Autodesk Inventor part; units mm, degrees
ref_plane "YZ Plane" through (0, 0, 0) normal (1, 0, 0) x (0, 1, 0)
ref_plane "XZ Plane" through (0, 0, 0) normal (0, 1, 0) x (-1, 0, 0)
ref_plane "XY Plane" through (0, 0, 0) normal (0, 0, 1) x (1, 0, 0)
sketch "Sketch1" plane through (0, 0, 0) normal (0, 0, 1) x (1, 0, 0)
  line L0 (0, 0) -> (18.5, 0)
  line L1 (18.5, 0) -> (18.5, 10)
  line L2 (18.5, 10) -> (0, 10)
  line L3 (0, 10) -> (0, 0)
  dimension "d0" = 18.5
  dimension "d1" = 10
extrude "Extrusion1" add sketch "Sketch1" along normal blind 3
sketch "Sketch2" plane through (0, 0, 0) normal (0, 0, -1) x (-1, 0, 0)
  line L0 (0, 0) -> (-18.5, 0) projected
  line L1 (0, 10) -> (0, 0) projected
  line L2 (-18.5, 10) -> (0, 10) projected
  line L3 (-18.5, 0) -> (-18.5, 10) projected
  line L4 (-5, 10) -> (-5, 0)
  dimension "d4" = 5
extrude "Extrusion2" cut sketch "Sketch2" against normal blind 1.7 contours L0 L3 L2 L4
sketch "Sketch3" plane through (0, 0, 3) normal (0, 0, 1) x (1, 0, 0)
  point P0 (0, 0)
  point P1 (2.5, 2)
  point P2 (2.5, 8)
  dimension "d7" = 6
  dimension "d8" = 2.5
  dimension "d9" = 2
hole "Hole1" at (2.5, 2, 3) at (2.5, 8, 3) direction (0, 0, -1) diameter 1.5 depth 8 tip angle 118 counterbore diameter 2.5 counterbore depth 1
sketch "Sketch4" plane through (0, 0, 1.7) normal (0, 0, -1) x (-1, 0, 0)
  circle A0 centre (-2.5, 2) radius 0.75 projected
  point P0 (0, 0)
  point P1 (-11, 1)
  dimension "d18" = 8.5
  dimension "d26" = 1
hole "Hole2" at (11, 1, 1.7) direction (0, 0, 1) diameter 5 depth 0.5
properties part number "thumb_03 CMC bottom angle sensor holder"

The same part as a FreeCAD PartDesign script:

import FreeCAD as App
import Part
import Sketcher
from FreeCAD import Vector


def add_polygon(sketch, points):
    """Adds a closed chain of lines whose ends are joined by coincident constraints."""
    first, n = sketch.GeometryCount, len(points)
    for a, b in zip(points, points[1:] + points[:1]):
        sketch.addGeometry(Part.LineSegment(App.Vector(*a, 0), App.Vector(*b, 0)), False)
    for i in range(n):
        sketch.addConstraint(Sketcher.Constraint("Coincident", first + i, 2, first + (i + 1) % n, 1))

doc = App.newDocument("Part")
body = doc.addObject("PartDesign::Body", "Body")

sketch1 = body.newObject("Sketcher::SketchObject", "Sketch")
sketch1.AttachmentSupport = (doc.getObject("XY_Plane"), [""])
sketch1.MapMode = "FlatFace"
add_polygon(sketch1, [(0, 10), (0, 0), (18, 0), (18, 10)])
sketch1.addConstraint([
    Sketcher.Constraint("Vertical", 0),
    Sketcher.Constraint("Horizontal", 1),
    Sketcher.Constraint("Vertical", 2),
    Sketcher.Constraint("Horizontal", 3),
    Sketcher.Constraint("Coincident", 0, 2, -1, 1),
    Sketcher.Constraint("DistanceY", 0, 2, 0, 1, 10.0),
    Sketcher.Constraint("DistanceX", 1, 1, 1, 2, 18.5),
])
pad1 = body.newObject("PartDesign::Pad", "Pad")
pad1.Profile = sketch1
pad1.Length = 3

sketch2 = body.newObject("Sketcher::SketchObject", "Sketch001")
sketch2.AttachmentSupport = (doc.getObject("XY_Plane"), [""])
sketch2.MapMode = "FlatFace"
add_polygon(sketch2, [(18, 0), (5, 0), (5, 10), (18, 10)])
sketch2.addConstraint([
    Sketcher.Constraint("Horizontal", 0),
    Sketcher.Constraint("Vertical", 1),
    Sketcher.Constraint("Horizontal", 2),
    Sketcher.Constraint("Vertical", 3),
    Sketcher.Constraint("PointOnObject", 0, 2, -1),
    Sketcher.Constraint("DistanceX", -1, 1, 0, 2, 5.0),
    Sketcher.Constraint("DistanceY", 1, 1, 1, 2, 10.0),
    Sketcher.Constraint("DistanceX", 0, 2, 0, 1, 13.5),
])
pocket1 = body.newObject("PartDesign::Pocket", "Pocket")
pocket1.Profile = sketch2
pocket1.Length = 1.7
pocket1.Reversed = True

sketch3 = body.newObject("Sketcher::SketchObject", "Sketch002")
sketch3.AttachmentSupport = (doc.getObject("XY_Plane"), [""])
sketch3.MapMode = "FlatFace"
sketch3.AttachmentOffset = App.Placement(Vector(0, 0, 3), App.Rotation())
sketch3.addGeometry([
    Part.Circle(Vector(2.5, 2, 0), Vector(0, 0, 1), 0.8),
    Part.Circle(Vector(2.5, 8, 0), Vector(0, 0, 1), 0.8),
], False)
sketch3.addConstraint([
    Sketcher.Constraint("Equal", 0, 1),
    Sketcher.Constraint("Vertical", 0, 3, 1, 3),
    Sketcher.Constraint("Diameter", 0, 1.5),
    Sketcher.Constraint("DistanceY", -1, 1, 0, 3, 2.0),
    Sketcher.Constraint("DistanceY", -1, 1, 1, 3, 8.0),
    Sketcher.Constraint("DistanceX", -1, 1, 0, 3, 2.5),
])
doc.recompute()
hole = body.newObject("PartDesign::Hole", "Hole")
hole.Profile = sketch3
hole.ThreadType = "None"
hole.Diameter = 1.5
hole.DepthType = "Dimension"
hole.Depth = 8
hole.DrillPoint = "Angled"
hole.DrillPointAngle = 118
hole.HoleCutType = "Counterbore"
hole.HoleCutDiameter = 2.5
hole.HoleCutDepth = 1

sketch4 = body.newObject("Sketcher::SketchObject", "Sketch003")
sketch4.AttachmentSupport = (doc.getObject("XY_Plane"), [""])
sketch4.MapMode = "FlatFace"
sketch4.AttachmentOffset = App.Placement(Vector(0, 0, 1.7), App.Rotation())
sketch4.addGeometry(Part.Circle(Vector(11, 1, 0), Vector(0, 0, 1), 2.5), False)
sketch4.addConstraint([
    Sketcher.Constraint("Diameter", 0, 5.0),
    Sketcher.Constraint("DistanceX", -1, 1, 0, 3, 11.0),
    Sketcher.Constraint("DistanceY", -1, 1, 0, 3, 1.0),
])
doc.recompute()
hole2 = body.newObject("PartDesign::Hole", "Hole001")
hole2.Profile = sketch4
hole2.ThreadType = "None"
hole2.Diameter = 5
hole2.DepthType = "Dimension"
hole2.Depth = 0.5
hole2.DrillPoint = "Flat"
hole2.Reversed = True

doc.recompute()
